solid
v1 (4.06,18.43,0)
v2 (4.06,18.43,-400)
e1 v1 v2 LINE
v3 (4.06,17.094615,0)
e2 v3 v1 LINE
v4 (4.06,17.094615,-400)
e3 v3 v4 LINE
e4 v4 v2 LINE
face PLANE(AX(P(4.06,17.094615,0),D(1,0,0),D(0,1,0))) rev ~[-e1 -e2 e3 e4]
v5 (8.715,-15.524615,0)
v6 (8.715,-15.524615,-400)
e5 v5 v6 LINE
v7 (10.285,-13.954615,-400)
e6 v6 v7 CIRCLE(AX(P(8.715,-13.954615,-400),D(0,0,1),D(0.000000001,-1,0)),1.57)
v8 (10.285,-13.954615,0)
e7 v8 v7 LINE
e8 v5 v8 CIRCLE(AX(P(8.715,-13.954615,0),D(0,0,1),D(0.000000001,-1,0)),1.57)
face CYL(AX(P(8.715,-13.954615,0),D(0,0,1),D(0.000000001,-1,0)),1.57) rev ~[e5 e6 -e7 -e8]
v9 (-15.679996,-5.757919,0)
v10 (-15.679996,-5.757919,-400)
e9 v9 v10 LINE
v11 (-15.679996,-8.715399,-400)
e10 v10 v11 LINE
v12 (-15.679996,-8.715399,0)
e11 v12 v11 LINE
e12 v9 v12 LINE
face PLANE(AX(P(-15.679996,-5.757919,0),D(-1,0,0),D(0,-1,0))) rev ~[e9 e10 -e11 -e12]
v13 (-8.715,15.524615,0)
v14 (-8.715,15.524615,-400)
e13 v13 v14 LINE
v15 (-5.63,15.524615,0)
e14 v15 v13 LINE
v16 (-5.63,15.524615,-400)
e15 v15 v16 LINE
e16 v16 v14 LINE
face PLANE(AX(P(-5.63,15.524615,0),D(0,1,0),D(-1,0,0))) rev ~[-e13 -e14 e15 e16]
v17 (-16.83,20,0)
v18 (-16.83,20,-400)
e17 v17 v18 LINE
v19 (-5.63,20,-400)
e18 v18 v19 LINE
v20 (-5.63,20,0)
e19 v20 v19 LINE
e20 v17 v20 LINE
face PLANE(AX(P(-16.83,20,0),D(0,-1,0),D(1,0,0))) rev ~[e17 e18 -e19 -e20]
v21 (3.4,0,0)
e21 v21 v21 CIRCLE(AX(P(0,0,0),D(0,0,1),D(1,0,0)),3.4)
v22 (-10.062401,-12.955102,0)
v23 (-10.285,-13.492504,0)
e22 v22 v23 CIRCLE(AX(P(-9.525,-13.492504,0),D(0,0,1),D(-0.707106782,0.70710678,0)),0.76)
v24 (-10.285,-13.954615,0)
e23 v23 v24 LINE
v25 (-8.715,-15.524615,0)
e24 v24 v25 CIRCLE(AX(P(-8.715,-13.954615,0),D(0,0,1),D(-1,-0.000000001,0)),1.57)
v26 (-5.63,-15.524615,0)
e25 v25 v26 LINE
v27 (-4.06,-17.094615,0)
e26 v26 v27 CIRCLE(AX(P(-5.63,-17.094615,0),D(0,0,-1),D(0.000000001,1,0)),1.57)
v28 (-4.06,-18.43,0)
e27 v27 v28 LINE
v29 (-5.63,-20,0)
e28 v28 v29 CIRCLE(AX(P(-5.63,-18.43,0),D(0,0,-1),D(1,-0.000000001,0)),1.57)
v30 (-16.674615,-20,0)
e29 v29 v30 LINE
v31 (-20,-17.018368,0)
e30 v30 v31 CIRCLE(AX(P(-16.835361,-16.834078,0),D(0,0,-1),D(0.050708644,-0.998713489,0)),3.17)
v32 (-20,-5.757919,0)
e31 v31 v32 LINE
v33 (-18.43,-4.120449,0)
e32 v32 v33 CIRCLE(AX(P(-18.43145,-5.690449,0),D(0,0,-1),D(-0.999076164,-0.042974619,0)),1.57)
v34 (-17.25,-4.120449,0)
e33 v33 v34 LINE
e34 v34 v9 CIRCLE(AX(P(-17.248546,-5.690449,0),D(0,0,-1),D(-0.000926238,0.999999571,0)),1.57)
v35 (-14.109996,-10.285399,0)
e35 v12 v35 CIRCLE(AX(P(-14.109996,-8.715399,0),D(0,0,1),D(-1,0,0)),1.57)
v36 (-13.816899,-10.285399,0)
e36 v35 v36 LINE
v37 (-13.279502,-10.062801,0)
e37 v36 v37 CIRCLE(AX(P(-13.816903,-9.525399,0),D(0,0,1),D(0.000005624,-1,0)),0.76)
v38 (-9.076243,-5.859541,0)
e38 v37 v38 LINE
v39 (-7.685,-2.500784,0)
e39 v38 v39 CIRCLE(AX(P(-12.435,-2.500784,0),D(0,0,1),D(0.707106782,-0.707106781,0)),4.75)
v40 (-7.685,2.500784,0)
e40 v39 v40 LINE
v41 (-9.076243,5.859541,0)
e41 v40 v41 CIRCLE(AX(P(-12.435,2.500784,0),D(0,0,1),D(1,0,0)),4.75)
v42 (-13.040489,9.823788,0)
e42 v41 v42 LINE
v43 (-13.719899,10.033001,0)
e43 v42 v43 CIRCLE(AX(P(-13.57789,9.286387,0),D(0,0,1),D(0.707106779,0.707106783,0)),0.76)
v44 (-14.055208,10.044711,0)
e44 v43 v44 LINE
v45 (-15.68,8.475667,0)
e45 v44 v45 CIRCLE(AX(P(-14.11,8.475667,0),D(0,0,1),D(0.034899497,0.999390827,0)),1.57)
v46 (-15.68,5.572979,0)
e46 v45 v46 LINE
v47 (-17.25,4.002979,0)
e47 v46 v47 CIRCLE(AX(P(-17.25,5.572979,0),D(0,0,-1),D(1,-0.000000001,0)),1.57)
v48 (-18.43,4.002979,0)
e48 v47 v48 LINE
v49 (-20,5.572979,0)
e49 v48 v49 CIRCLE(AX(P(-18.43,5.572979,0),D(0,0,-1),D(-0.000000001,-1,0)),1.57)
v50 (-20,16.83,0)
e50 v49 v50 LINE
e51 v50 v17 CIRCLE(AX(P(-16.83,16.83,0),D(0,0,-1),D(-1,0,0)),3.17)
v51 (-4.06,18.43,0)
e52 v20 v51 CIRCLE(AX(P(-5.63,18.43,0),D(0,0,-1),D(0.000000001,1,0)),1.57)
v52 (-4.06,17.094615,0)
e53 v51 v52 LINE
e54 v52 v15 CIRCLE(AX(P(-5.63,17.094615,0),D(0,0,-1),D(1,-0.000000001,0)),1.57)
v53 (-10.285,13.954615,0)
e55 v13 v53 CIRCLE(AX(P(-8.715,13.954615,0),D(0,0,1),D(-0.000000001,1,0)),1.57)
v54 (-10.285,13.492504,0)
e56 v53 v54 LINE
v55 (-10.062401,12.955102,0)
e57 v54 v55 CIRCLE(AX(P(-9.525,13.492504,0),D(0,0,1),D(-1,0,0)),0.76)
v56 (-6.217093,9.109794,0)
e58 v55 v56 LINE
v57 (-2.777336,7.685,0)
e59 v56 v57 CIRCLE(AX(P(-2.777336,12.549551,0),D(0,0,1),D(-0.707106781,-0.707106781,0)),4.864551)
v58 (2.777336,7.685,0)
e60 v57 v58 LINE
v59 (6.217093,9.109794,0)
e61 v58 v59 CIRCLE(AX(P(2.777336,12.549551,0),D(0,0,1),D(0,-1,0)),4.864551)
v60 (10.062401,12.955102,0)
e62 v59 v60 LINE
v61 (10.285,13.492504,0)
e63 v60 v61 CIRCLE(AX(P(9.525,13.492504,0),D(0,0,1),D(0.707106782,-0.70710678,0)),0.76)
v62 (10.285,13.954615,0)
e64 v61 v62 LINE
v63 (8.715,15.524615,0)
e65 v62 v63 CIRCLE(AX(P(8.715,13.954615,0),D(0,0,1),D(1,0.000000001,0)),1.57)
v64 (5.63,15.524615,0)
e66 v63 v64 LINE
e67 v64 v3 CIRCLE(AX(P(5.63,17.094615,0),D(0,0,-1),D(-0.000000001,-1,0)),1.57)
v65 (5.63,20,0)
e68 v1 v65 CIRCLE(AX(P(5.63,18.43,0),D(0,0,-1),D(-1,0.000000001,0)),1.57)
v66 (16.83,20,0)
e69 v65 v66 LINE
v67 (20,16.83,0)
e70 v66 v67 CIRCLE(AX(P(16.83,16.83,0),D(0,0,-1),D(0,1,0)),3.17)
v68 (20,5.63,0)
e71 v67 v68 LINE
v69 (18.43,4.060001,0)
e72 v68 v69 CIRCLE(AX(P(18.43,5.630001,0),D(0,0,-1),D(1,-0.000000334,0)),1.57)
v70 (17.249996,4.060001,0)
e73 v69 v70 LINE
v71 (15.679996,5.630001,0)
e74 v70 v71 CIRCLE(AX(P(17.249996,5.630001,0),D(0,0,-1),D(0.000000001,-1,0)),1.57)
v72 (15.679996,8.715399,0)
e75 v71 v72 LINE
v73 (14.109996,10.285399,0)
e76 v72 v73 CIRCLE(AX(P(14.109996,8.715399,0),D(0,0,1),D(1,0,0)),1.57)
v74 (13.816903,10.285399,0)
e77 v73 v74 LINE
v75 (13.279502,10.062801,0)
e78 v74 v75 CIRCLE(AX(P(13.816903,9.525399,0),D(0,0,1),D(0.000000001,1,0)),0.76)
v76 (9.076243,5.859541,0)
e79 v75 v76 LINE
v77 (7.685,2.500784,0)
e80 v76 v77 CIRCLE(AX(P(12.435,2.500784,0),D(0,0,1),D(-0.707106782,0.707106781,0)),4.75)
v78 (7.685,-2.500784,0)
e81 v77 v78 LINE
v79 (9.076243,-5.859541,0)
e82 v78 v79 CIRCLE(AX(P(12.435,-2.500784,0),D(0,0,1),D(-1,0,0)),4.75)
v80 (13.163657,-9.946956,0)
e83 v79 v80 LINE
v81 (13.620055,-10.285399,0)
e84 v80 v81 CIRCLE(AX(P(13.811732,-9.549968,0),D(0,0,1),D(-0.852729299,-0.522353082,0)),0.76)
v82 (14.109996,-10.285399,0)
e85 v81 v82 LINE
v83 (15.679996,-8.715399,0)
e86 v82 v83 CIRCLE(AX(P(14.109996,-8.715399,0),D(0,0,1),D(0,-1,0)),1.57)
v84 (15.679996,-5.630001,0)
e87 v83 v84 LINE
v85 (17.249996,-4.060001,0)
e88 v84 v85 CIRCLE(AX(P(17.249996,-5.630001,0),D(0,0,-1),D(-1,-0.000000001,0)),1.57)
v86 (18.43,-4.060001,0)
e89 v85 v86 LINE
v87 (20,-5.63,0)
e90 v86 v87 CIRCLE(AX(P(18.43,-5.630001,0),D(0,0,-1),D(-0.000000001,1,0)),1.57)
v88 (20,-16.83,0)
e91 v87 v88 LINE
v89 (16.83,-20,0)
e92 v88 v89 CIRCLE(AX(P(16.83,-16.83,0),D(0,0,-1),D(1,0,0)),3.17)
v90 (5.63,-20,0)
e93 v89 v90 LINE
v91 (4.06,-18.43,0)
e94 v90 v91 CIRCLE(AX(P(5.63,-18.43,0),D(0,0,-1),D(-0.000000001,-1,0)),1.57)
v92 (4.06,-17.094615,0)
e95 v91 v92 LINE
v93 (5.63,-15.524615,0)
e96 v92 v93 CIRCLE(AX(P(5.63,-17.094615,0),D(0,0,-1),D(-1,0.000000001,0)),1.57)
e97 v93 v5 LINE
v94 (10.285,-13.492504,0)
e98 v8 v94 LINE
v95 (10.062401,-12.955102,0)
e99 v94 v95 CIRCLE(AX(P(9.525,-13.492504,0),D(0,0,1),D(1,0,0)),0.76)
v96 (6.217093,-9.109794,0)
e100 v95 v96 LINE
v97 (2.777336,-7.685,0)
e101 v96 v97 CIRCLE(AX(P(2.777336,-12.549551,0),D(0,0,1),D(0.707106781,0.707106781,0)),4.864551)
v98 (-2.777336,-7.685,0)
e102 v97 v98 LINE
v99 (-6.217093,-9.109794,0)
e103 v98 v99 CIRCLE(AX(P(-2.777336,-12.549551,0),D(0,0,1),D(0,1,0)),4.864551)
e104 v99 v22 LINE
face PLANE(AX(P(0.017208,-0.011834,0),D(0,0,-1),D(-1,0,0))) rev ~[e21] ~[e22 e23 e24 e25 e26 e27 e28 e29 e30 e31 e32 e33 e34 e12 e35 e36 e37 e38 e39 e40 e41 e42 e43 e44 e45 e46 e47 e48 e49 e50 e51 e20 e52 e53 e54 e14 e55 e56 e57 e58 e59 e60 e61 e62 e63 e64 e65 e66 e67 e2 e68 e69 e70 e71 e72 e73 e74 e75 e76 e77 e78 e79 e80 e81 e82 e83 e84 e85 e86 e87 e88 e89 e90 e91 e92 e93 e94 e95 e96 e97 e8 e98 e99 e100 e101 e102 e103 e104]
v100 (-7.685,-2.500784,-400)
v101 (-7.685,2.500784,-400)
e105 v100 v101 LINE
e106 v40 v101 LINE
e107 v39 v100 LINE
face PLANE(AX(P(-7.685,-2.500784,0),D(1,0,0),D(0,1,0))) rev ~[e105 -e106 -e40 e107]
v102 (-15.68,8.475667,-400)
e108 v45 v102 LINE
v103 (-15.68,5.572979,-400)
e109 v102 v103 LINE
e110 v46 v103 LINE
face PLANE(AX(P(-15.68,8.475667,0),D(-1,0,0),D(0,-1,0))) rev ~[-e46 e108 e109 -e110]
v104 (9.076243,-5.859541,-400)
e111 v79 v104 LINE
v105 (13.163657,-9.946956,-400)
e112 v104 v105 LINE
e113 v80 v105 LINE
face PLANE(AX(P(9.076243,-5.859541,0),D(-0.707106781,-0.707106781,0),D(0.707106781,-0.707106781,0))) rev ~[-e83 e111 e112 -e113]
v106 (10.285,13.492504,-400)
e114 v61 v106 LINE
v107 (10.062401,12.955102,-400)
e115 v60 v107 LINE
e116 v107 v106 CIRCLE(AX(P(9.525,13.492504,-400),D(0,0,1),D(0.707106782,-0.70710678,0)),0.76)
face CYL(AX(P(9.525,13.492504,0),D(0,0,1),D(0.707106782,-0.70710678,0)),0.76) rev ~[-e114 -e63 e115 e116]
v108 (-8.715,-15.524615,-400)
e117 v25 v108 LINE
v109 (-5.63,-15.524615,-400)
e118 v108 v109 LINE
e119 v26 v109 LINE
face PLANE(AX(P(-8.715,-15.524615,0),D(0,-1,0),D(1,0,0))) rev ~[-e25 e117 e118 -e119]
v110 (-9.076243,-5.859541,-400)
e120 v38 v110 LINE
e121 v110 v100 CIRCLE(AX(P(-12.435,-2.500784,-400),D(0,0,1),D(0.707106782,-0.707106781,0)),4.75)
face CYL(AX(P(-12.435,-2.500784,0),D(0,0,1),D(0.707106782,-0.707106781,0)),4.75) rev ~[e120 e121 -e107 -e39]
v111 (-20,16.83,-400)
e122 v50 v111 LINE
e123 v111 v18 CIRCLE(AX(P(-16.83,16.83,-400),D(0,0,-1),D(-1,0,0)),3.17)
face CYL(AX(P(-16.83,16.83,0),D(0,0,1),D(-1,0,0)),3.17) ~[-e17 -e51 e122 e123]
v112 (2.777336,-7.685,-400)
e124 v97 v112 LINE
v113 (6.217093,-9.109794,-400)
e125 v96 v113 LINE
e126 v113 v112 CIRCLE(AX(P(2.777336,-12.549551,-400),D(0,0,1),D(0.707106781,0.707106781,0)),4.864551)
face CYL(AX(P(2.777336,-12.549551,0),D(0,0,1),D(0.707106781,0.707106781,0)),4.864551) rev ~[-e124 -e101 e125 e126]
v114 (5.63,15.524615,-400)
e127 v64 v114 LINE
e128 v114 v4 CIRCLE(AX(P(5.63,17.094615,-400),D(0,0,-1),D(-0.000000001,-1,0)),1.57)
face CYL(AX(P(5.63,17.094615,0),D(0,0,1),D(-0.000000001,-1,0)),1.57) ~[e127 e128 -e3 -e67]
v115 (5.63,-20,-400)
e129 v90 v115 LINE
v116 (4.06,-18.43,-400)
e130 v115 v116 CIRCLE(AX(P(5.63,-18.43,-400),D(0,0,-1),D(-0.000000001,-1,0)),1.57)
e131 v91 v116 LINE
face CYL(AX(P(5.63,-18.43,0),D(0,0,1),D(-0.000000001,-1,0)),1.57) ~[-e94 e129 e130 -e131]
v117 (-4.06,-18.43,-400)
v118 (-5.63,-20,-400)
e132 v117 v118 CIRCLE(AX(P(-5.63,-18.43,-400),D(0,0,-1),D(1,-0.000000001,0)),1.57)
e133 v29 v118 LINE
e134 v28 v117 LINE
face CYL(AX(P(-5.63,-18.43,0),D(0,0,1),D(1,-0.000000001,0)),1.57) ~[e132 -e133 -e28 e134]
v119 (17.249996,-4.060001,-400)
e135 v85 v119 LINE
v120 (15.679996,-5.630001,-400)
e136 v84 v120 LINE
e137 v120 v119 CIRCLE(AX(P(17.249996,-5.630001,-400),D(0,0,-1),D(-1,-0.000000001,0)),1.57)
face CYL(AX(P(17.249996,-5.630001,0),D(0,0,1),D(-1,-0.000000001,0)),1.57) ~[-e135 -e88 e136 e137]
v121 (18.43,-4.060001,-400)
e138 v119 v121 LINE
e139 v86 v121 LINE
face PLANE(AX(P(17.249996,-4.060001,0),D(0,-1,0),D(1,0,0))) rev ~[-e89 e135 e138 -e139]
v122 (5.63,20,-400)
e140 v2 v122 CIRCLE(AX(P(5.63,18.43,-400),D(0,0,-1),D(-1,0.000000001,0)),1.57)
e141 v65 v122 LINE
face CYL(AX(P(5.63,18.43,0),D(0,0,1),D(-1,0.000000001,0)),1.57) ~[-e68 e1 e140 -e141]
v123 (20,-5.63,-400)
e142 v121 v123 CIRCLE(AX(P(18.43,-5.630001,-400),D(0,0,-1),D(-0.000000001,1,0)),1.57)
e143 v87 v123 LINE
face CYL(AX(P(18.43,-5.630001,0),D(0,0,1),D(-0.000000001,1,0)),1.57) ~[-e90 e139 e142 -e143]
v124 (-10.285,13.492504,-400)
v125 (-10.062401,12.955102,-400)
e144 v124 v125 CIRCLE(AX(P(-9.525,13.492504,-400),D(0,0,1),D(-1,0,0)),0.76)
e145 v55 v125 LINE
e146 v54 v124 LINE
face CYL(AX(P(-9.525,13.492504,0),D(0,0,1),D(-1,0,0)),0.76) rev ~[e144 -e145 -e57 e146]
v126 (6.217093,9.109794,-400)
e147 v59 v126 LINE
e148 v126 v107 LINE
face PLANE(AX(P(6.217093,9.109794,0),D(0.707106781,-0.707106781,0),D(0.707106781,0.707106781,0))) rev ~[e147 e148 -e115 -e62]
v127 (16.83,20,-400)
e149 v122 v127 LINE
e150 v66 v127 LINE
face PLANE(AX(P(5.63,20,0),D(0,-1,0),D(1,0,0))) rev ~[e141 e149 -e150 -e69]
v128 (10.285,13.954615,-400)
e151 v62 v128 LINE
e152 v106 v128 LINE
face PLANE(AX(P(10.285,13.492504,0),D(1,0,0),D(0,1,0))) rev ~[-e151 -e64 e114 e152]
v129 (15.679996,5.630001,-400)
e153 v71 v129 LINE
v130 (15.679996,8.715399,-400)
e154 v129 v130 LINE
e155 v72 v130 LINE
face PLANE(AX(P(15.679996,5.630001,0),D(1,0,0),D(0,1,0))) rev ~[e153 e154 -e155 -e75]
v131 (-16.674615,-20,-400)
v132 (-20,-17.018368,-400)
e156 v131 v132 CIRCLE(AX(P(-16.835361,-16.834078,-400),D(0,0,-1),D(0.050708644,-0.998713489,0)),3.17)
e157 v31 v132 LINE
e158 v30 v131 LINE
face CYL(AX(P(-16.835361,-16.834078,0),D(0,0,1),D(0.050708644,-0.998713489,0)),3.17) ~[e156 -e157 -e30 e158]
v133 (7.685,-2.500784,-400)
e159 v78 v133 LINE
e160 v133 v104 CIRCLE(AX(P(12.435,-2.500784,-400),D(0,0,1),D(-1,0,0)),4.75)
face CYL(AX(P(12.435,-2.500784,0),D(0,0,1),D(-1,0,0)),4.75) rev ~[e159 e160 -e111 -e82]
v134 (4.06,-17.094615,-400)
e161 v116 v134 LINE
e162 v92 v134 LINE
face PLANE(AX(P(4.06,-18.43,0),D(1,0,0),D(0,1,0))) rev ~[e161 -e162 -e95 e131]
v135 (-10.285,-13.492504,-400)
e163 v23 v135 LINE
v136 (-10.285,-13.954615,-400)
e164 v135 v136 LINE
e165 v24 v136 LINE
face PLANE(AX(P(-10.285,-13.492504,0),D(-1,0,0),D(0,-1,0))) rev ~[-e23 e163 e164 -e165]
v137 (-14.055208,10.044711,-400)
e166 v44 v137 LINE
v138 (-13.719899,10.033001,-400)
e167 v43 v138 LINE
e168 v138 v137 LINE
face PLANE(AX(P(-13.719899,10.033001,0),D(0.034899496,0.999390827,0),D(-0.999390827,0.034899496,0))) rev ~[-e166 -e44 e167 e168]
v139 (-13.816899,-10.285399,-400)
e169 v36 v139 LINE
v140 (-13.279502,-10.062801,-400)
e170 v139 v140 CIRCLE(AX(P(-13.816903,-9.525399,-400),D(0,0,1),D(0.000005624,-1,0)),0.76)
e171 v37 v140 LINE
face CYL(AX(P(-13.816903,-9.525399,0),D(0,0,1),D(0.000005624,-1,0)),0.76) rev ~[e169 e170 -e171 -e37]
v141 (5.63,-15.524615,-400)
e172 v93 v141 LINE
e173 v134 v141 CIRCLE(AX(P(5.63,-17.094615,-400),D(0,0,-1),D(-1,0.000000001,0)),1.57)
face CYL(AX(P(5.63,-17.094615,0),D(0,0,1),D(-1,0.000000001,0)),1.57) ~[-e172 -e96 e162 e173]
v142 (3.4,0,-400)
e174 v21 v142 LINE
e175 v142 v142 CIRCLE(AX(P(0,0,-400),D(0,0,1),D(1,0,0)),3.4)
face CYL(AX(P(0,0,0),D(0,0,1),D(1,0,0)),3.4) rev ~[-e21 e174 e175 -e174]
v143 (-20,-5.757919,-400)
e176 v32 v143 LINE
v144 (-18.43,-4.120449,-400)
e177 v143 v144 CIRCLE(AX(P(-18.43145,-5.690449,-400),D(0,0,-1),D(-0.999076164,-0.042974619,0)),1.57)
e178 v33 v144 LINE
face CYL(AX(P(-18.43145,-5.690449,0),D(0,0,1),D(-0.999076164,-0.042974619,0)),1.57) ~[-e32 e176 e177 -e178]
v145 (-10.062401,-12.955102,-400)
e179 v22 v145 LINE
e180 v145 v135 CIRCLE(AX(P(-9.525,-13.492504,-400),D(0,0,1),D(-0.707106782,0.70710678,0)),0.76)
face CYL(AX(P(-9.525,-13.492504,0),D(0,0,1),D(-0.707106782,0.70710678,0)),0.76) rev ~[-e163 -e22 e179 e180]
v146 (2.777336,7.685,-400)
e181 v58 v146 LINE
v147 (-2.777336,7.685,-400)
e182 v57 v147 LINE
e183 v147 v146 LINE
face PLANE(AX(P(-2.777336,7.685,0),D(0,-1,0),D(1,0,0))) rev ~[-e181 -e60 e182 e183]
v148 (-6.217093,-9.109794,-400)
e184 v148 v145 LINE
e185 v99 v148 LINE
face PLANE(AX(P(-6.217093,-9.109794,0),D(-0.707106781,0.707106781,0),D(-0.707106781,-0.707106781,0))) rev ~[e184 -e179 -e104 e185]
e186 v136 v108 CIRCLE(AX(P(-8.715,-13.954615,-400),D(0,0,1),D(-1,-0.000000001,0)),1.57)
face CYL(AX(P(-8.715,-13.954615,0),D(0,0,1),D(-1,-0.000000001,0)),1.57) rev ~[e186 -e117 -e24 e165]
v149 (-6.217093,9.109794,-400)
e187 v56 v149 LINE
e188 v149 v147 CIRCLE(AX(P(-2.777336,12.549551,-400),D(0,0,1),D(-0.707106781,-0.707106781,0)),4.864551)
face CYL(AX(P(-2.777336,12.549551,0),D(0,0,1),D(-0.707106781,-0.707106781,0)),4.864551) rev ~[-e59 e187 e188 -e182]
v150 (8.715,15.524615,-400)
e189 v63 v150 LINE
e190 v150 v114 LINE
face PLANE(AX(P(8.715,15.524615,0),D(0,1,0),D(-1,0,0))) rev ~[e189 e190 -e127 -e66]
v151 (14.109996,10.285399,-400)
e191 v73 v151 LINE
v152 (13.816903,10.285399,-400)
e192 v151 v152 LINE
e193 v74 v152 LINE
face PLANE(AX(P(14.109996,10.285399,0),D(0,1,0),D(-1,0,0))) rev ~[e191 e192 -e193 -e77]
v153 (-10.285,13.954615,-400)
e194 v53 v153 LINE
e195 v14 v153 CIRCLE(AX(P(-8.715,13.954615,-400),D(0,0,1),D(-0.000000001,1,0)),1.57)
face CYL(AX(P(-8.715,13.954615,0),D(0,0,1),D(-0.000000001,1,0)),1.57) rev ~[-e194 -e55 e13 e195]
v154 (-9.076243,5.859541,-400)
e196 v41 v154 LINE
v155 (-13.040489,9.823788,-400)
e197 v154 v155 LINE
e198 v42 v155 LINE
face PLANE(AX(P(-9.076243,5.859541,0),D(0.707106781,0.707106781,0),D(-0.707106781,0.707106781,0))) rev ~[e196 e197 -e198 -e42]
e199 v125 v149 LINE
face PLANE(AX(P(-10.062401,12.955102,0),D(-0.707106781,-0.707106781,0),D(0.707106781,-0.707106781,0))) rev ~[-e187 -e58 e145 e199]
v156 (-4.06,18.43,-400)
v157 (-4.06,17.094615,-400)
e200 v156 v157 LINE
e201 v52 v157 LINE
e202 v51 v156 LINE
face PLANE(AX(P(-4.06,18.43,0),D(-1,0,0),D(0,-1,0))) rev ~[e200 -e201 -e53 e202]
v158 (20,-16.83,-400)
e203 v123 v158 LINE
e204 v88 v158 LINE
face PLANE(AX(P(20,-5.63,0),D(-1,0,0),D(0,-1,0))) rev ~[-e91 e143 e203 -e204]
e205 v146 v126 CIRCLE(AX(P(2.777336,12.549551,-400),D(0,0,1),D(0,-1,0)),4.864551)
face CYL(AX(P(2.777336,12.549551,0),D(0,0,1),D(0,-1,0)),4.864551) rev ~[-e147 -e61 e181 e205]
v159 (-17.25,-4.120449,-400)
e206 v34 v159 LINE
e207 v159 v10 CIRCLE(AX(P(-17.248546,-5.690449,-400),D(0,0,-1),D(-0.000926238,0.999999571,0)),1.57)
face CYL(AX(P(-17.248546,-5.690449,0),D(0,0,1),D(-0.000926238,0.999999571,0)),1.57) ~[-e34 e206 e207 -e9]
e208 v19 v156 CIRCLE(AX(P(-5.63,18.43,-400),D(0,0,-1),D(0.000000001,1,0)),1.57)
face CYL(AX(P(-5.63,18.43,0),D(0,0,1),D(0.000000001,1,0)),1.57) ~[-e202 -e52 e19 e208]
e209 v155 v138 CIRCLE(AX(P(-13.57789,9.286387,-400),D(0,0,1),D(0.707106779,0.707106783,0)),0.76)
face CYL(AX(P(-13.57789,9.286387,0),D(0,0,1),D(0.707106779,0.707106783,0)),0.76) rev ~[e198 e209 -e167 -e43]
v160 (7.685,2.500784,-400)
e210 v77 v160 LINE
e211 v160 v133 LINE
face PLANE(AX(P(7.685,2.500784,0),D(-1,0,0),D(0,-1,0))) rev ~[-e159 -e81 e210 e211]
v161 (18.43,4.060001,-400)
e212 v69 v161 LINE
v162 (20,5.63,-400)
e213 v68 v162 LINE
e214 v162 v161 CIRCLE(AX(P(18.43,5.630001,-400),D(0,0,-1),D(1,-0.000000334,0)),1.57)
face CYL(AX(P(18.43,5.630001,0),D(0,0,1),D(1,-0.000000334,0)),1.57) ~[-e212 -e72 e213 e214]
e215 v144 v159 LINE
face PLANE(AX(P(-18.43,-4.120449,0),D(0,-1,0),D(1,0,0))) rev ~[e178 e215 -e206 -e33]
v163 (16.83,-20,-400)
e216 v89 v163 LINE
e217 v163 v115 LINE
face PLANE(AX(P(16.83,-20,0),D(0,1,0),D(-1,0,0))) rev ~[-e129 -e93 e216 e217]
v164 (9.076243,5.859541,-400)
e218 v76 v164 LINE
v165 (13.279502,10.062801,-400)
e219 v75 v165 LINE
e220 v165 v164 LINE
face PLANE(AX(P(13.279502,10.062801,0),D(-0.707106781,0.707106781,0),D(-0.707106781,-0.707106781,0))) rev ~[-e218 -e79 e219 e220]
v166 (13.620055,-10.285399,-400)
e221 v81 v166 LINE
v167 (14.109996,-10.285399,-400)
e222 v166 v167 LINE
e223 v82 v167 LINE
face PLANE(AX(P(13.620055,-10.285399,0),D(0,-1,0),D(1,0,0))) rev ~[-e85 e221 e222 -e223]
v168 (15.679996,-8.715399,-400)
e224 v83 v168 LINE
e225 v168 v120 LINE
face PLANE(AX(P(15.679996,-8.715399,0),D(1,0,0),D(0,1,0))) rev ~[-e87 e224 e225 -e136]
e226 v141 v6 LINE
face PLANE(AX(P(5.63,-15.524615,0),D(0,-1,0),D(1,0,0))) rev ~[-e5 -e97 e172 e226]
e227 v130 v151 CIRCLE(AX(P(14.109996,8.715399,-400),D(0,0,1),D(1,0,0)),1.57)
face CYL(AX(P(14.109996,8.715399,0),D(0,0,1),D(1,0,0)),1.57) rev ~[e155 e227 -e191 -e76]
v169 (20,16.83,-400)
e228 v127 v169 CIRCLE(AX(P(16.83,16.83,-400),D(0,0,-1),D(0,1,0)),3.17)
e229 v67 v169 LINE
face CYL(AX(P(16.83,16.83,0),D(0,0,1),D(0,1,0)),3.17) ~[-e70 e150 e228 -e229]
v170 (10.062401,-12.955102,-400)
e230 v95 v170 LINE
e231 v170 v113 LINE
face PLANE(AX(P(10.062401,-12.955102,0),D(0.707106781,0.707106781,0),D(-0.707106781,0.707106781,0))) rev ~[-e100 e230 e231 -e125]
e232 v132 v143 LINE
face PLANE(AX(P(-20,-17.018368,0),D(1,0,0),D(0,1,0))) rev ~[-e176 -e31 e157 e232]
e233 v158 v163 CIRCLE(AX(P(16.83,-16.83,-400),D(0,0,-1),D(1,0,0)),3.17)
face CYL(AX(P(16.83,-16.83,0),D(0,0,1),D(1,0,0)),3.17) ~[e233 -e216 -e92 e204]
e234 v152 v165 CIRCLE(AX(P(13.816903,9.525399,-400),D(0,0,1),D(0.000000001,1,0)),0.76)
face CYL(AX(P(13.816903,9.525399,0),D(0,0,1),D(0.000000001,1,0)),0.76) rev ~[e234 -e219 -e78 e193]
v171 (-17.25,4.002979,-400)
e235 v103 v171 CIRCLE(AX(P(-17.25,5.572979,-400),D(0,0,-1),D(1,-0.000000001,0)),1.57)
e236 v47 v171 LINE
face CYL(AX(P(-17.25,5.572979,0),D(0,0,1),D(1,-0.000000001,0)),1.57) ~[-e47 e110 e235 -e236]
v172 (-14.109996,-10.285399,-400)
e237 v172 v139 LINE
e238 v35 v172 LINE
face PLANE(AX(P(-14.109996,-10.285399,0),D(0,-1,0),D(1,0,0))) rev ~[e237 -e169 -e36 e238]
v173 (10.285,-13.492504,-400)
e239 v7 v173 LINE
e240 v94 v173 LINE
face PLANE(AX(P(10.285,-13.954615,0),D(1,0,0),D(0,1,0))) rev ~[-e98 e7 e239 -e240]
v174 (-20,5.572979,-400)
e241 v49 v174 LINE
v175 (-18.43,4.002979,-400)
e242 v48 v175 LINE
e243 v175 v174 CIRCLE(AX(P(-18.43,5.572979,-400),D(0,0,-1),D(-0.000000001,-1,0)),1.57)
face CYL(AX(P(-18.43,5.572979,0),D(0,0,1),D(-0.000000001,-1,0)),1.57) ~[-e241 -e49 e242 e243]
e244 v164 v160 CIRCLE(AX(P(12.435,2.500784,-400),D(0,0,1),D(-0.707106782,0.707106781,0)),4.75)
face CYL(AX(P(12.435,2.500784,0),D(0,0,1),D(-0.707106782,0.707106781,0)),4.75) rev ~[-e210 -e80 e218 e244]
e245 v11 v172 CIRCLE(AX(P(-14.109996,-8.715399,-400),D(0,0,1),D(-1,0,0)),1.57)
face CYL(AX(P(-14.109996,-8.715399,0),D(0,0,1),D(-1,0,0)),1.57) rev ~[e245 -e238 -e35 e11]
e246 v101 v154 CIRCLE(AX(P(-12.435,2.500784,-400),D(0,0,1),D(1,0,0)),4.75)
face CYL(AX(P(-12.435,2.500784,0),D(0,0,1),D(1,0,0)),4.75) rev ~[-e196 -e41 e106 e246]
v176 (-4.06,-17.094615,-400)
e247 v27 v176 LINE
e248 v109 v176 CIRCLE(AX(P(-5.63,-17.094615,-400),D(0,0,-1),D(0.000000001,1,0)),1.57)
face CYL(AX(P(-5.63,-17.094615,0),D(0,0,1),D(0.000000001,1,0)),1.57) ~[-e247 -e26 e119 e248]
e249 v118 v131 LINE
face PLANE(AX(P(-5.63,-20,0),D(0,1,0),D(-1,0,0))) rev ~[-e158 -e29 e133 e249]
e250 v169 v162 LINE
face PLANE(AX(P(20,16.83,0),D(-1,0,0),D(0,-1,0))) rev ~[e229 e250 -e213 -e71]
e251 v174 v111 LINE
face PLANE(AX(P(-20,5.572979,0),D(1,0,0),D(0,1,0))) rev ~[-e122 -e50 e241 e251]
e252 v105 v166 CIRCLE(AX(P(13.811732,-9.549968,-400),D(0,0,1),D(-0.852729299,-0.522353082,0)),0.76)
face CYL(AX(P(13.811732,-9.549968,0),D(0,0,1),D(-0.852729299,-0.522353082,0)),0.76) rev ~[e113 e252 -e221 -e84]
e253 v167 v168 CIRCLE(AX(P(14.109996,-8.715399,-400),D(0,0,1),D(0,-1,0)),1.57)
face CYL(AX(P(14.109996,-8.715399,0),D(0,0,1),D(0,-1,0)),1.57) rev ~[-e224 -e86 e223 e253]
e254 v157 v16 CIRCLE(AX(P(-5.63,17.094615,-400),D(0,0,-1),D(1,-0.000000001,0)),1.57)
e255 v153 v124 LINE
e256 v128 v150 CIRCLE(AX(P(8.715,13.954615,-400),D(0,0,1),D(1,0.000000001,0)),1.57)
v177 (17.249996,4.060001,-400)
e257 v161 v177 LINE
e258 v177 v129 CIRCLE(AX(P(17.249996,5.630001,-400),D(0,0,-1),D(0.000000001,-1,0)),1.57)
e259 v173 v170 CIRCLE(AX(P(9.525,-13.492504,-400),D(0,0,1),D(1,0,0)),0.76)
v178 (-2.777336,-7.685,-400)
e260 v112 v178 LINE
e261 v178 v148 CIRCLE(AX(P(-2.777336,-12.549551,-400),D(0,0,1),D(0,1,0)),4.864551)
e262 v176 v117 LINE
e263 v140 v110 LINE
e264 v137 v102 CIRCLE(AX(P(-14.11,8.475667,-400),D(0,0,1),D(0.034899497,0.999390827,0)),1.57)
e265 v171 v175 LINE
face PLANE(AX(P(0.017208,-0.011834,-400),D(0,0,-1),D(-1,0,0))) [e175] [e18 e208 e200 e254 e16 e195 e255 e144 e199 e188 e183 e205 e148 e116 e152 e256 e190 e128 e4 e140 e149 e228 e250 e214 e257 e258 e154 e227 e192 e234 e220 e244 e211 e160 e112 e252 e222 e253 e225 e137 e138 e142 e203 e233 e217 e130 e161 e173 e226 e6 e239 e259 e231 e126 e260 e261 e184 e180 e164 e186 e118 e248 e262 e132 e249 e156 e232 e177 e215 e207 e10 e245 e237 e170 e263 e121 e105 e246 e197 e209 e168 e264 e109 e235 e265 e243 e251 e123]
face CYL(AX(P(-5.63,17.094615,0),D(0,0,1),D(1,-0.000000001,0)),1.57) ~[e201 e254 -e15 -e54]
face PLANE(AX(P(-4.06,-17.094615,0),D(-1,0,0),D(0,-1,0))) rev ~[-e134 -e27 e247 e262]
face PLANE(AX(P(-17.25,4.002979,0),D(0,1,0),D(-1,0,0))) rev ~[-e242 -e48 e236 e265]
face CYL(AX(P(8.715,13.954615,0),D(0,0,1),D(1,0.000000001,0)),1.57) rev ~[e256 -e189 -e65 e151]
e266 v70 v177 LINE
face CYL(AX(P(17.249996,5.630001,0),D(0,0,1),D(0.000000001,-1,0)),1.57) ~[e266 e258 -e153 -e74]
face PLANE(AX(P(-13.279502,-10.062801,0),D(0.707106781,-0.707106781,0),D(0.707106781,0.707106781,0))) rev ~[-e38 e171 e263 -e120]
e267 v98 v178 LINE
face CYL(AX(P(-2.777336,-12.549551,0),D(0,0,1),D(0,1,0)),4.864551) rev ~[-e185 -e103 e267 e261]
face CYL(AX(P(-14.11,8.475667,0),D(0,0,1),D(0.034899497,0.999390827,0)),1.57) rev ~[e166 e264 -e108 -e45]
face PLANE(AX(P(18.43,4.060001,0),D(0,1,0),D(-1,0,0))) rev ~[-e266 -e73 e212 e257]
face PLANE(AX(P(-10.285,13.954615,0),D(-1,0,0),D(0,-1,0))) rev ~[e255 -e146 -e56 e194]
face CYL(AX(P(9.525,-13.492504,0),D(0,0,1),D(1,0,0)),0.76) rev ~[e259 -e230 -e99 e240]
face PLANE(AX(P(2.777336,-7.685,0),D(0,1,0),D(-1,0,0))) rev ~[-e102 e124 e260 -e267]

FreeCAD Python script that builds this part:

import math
import FreeCAD as App
import Part
import Sketcher
from FreeCAD import Vector
Q = App.Units.Quantity

doc = App.newDocument("Part")
params = doc.addObject("Spreadsheet::Sheet", "Params")
for row, (alias, value) in enumerate([
    ("sketch1_diameter", "6.8 mm"),
    ("sketch1_radius", "1.57 mm"),
    ("sketch1_radius2", "0.76 mm"),
    ("sketch1_radius3", "3.17 mm"),
    ("sketch1_radius4", "4.75 mm"),
    ("pad1_length", "400 mm"),
], start=1):
    params.set(f"A{row}", alias)
    params.set(f"B{row}", "=" + value)
    params.setAlias(f"B{row}", alias)

body = doc.addObject("PartDesign::Body", "Body")

sketch1 = body.newObject("Sketcher::SketchObject", "Sketch")
sketch1.AttachmentSupport = (doc.getObject("XY_Plane"), [""])
sketch1.MapMode = "FlatFace"
sketch1.addGeometry([
    Part.LineSegment(Vector(-5.63, -15.52, 0), Vector(-8.71, -15.52, 0)),
    Part.ArcOfCircle(Part.Circle(Vector(-8.71, -13.95, 0), Vector(0, 0, 1), 1.57), math.radians(-180), math.radians(-90)),
    Part.LineSegment(Vector(-10.29, -13.95, 0), Vector(-10.29, -13.49, 0)),
    Part.ArcOfCircle(Part.Circle(Vector(-9.52, -13.49, 0), Vector(0, 0, 1), 0.76), math.radians(135), math.radians(180)),
    Part.LineSegment(Vector(-10.06, -12.96, 0), Vector(-6.22, -9.11, 0)),
    Part.ArcOfCircle(Part.Circle(Vector(-2.78, -12.55, 0), Vector(0, 0, 1), 4.86), math.radians(90), math.radians(135)),
    Part.LineSegment(Vector(-2.78, -7.68, 0), Vector(2.78, -7.68, 0)),
    Part.ArcOfCircle(Part.Circle(Vector(2.78, -12.55, 0), Vector(0, 0, 1), 4.86), math.radians(45), math.radians(90)),
    Part.LineSegment(Vector(6.22, -9.11, 0), Vector(10.06, -12.96, 0)),
    Part.ArcOfCircle(Part.Circle(Vector(9.52, -13.49, 0), Vector(0, 0, 1), 0.76), math.radians(0), math.radians(45)),
    Part.LineSegment(Vector(10.29, -13.49, 0), Vector(10.29, -13.95, 0)),
    Part.ArcOfCircle(Part.Circle(Vector(8.71, -13.95, 0), Vector(0, 0, 1), 1.57), math.radians(-90), math.radians(0)),
    Part.LineSegment(Vector(8.71, -15.52, 0), Vector(5.63, -15.52, 0)),
    Part.ArcOfCircle(Part.Circle(Vector(5.63, -17.09, 0), Vector(0, 0, 1), 1.57), math.radians(90), math.radians(180)),
    Part.LineSegment(Vector(4.06, -17.09, 0), Vector(4.06, -18.43, 0)),
    Part.ArcOfCircle(Part.Circle(Vector(5.63, -18.43, 0), Vector(0, 0, 1), 1.57), math.radians(-180), math.radians(-90)),
    Part.LineSegment(Vector(5.63, -20, 0), Vector(16.83, -20, 0)),
    Part.ArcOfCircle(Part.Circle(Vector(16.83, -16.83, 0), Vector(0, 0, 1), 3.17), math.radians(-90), math.radians(0)),
    Part.LineSegment(Vector(20, -16.83, 0), Vector(20, -5.63, 0)),
    Part.ArcOfCircle(Part.Circle(Vector(18.43, -5.63, 0), Vector(0, 0, 1), 1.57), math.radians(0), math.radians(90)),
    Part.LineSegment(Vector(18.43, -4.06, 0), Vector(17.25, -4.06, 0)),
    Part.ArcOfCircle(Part.Circle(Vector(17.25, -5.63, 0), Vector(0, 0, 1), 1.57), math.radians(90), math.radians(180)),
    Part.LineSegment(Vector(15.68, -5.63, 0), Vector(15.68, -8.72, 0)),
    Part.ArcOfCircle(Part.Circle(Vector(14.11, -8.72, 0), Vector(0, 0, 1), 1.57), math.radians(-90), math.radians(0)),
    Part.LineSegment(Vector(14.11, -10.29, 0), Vector(13.62, -10.29, 0)),
    Part.ArcOfCircle(Part.Circle(Vector(13.81, -9.55, 0), Vector(0, 0, 1), 0.76), math.radians(-149), math.radians(-105)),
    Part.LineSegment(Vector(13.16, -9.95, 0), Vector(9.08, -5.86, 0)),
    Part.ArcOfCircle(Part.Circle(Vector(12.44, -2.5, 0), Vector(0, 0, 1), 4.75), math.radians(-180), math.radians(-135)),
    Part.LineSegment(Vector(7.68, -2.5, 0), Vector(7.68, 2.5, 0)),
    Part.ArcOfCircle(Part.Circle(Vector(12.44, 2.5, 0), Vector(0, 0, 1), 4.75), math.radians(135), math.radians(180)),
    Part.LineSegment(Vector(9.08, 5.86, 0), Vector(13.28, 10.06, 0)),
    Part.ArcOfCircle(Part.Circle(Vector(13.82, 9.53, 0), Vector(0, 0, 1), 0.76), math.radians(90), math.radians(135)),
    Part.LineSegment(Vector(13.82, 10.29, 0), Vector(14.11, 10.29, 0)),
    Part.ArcOfCircle(Part.Circle(Vector(14.11, 8.72, 0), Vector(0, 0, 1), 1.57), math.radians(0), math.radians(90)),
    Part.LineSegment(Vector(15.68, 8.72, 0), Vector(15.68, 5.63, 0)),
    Part.ArcOfCircle(Part.Circle(Vector(17.25, 5.63, 0), Vector(0, 0, 1), 1.57), math.radians(180), math.radians(270)),
    Part.LineSegment(Vector(17.25, 4.06, 0), Vector(18.43, 4.06, 0)),
    Part.ArcOfCircle(Part.Circle(Vector(18.43, 5.63, 0), Vector(0, 0, 1), 1.57), math.radians(-90), math.radians(0)),
    Part.LineSegment(Vector(20, 5.63, 0), Vector(20, 16.83, 0)),
    Part.ArcOfCircle(Part.Circle(Vector(16.83, 16.83, 0), Vector(0, 0, 1), 3.17), math.radians(0), math.radians(90)),
    Part.LineSegment(Vector(16.83, 20, 0), Vector(5.63, 20, 0)),
    Part.ArcOfCircle(Part.Circle(Vector(5.63, 18.43, 0), Vector(0, 0, 1), 1.57), math.radians(90), math.radians(180)),
    Part.LineSegment(Vector(4.06, 18.43, 0), Vector(4.06, 17.09, 0)),
    Part.ArcOfCircle(Part.Circle(Vector(5.63, 17.09, 0), Vector(0, 0, 1), 1.57), math.radians(-180), math.radians(-90)),
    Part.LineSegment(Vector(5.63, 15.52, 0), Vector(8.71, 15.52, 0)),
    Part.ArcOfCircle(Part.Circle(Vector(8.71, 13.95, 0), Vector(0, 0, 1), 1.57), math.radians(0), math.radians(90)),
    Part.LineSegment(Vector(10.29, 13.95, 0), Vector(10.29, 13.49, 0)),
    Part.ArcOfCircle(Part.Circle(Vector(9.52, 13.49, 0), Vector(0, 0, 1), 0.76), math.radians(-45), math.radians(0)),
    Part.LineSegment(Vector(10.06, 12.96, 0), Vector(6.22, 9.11, 0)),
    Part.ArcOfCircle(Part.Circle(Vector(2.78, 12.55, 0), Vector(0, 0, 1), 4.86), math.radians(-90), math.radians(-45)),
    Part.LineSegment(Vector(2.78, 7.68, 0), Vector(-2.78, 7.68, 0)),
    Part.ArcOfCircle(Part.Circle(Vector(-2.78, 12.55, 0), Vector(0, 0, 1), 4.86), math.radians(-135), math.radians(-90)),
    Part.LineSegment(Vector(-6.22, 9.11, 0), Vector(-10.06, 12.96, 0)),
    Part.ArcOfCircle(Part.Circle(Vector(-9.52, 13.49, 0), Vector(0, 0, 1), 0.76), math.radians(180), math.radians(225)),
    Part.LineSegment(Vector(-10.29, 13.49, 0), Vector(-10.29, 13.95, 0)),
    Part.ArcOfCircle(Part.Circle(Vector(-8.71, 13.95, 0), Vector(0, 0, 1), 1.57), math.radians(90), math.radians(180)),
    Part.LineSegment(Vector(-8.71, 15.52, 0), Vector(-5.63, 15.52, 0)),
    Part.ArcOfCircle(Part.Circle(Vector(-5.63, 17.09, 0), Vector(0, 0, 1), 1.57), math.radians(-90), math.radians(0)),
    Part.LineSegment(Vector(-4.06, 17.09, 0), Vector(-4.06, 18.43, 0)),
    Part.ArcOfCircle(Part.Circle(Vector(-5.63, 18.43, 0), Vector(0, 0, 1), 1.57), math.radians(0), math.radians(90)),
    Part.LineSegment(Vector(-5.63, 20, 0), Vector(-16.83, 20, 0)),
    Part.ArcOfCircle(Part.Circle(Vector(-16.83, 16.83, 0), Vector(0, 0, 1), 3.17), math.radians(90), math.radians(180)),
    Part.LineSegment(Vector(-20, 16.83, 0), Vector(-20, 5.57, 0)),
    Part.ArcOfCircle(Part.Circle(Vector(-18.43, 5.57, 0), Vector(0, 0, 1), 1.57), math.radians(-180), math.radians(-90)),
    Part.LineSegment(Vector(-18.43, 4, 0), Vector(-17.25, 4, 0)),
    Part.ArcOfCircle(Part.Circle(Vector(-17.25, 5.57, 0), Vector(0, 0, 1), 1.57), math.radians(-90), math.radians(0)),
    Part.LineSegment(Vector(-15.68, 5.57, 0), Vector(-15.68, 8.48, 0)),
    Part.ArcOfCircle(Part.Circle(Vector(-14.11, 8.48, 0), Vector(0, 0, 1), 1.57), math.radians(88), math.radians(180)),
    Part.LineSegment(Vector(-14.06, 10.04, 0), Vector(-13.72, 10.03, 0)),
    Part.ArcOfCircle(Part.Circle(Vector(-13.58, 9.29, 0), Vector(0, 0, 1), 0.76), math.radians(45), math.radians(101)),
    Part.LineSegment(Vector(-13.04, 9.82, 0), Vector(-9.08, 5.86, 0)),
    Part.ArcOfCircle(Part.Circle(Vector(-12.44, 2.5, 0), Vector(0, 0, 1), 4.75), math.radians(0), math.radians(45)),
    Part.LineSegment(Vector(-7.68, 2.5, 0), Vector(-7.68, -2.5, 0)),
    Part.ArcOfCircle(Part.Circle(Vector(-12.44, -2.5, 0), Vector(0, 0, 1), 4.75), math.radians(-45), math.radians(0)),
    Part.LineSegment(Vector(-9.08, -5.86, 0), Vector(-13.28, -10.06, 0)),
    Part.ArcOfCircle(Part.Circle(Vector(-13.82, -9.53, 0), Vector(0, 0, 1), 0.76), math.radians(-90), math.radians(-45)),
    Part.LineSegment(Vector(-13.82, -10.29, 0), Vector(-14.11, -10.29, 0)),
    Part.ArcOfCircle(Part.Circle(Vector(-14.11, -8.72, 0), Vector(0, 0, 1), 1.57), math.radians(180), math.radians(270)),
    Part.LineSegment(Vector(-15.68, -8.72, 0), Vector(-15.68, -5.76, 0)),
    Part.ArcOfCircle(Part.Circle(Vector(-17.25, -5.69, 0), Vector(0, 0, 1), 1.57), math.radians(-2), math.radians(90)),
    Part.LineSegment(Vector(-17.25, -4.12, 0), Vector(-18.43, -4.12, 0)),
    Part.ArcOfCircle(Part.Circle(Vector(-18.43, -5.69, 0), Vector(0, 0, 1), 1.57), math.radians(90), math.radians(182)),
    Part.LineSegment(Vector(-20, -5.76, 0), Vector(-20, -17.02, 0)),
    Part.ArcOfCircle(Part.Circle(Vector(-16.84, -16.83, 0), Vector(0, 0, 1), 3.17), math.radians(-177), math.radians(-87)),
    Part.LineSegment(Vector(-16.67, -20, 0), Vector(-5.63, -20, 0)),
    Part.ArcOfCircle(Part.Circle(Vector(-5.63, -18.43, 0), Vector(0, 0, 1), 1.57), math.radians(-90), math.radians(0)),
    Part.LineSegment(Vector(-4.06, -18.43, 0), Vector(-4.06, -17.09, 0)),
    Part.ArcOfCircle(Part.Circle(Vector(-5.63, -17.09, 0), Vector(0, 0, 1), 1.57), math.radians(0), math.radians(90)),
    Part.Circle(Vector(0, 0, 0), Vector(0, 0, 1), 3.4),
], False)
sketch1.addConstraint([
    Sketcher.Constraint("Tangent", 0, 2, 1, 2),
    Sketcher.Constraint("Tangent", 1, 1, 2, 1),
    Sketcher.Constraint("Tangent", 2, 2, 3, 2),
    Sketcher.Constraint("Tangent", 3, 1, 4, 1),
    Sketcher.Constraint("Tangent", 4, 2, 5, 2),
    Sketcher.Constraint("Tangent", 5, 1, 6, 1),
    Sketcher.Constraint("Tangent", 6, 2, 7, 2),
    Sketcher.Constraint("Tangent", 7, 1, 8, 1),
    Sketcher.Constraint("Tangent", 8, 2, 9, 2),
    Sketcher.Constraint("Tangent", 9, 1, 10, 1),
    Sketcher.Constraint("Tangent", 10, 2, 11, 2),
    Sketcher.Constraint("Tangent", 11, 1, 12, 1),
    Sketcher.Constraint("Tangent", 12, 2, 13, 1),
    Sketcher.Constraint("Tangent", 13, 2, 14, 1),
    Sketcher.Constraint("Tangent", 14, 2, 15, 1),
    Sketcher.Constraint("Tangent", 15, 2, 16, 1),
    Sketcher.Constraint("Tangent", 16, 2, 17, 1),
    Sketcher.Constraint("Tangent", 17, 2, 18, 1),
    Sketcher.Constraint("Tangent", 18, 2, 19, 1),
    Sketcher.Constraint("Tangent", 19, 2, 20, 1),
    Sketcher.Constraint("Tangent", 20, 2, 21, 1),
    Sketcher.Constraint("Tangent", 21, 2, 22, 1),
    Sketcher.Constraint("Tangent", 22, 2, 23, 2),
    Sketcher.Constraint("Tangent", 23, 1, 24, 1),
    Sketcher.Constraint("Coincident", 24, 2, 25, 2),
    Sketcher.Constraint("Coincident", 25, 1, 26, 1),
    Sketcher.Constraint("Tangent", 26, 2, 27, 2),
    Sketcher.Constraint("Tangent", 27, 1, 28, 1),
    Sketcher.Constraint("Tangent", 28, 2, 29, 2),
    Sketcher.Constraint("Tangent", 29, 1, 30, 1),
    Sketcher.Constraint("Tangent", 30, 2, 31, 2),
    Sketcher.Constraint("Tangent", 31, 1, 32, 1),
    Sketcher.Constraint("Tangent", 32, 2, 33, 2),
    Sketcher.Constraint("Tangent", 33, 1, 34, 1),
    Sketcher.Constraint("Tangent", 34, 2, 35, 1),
    Sketcher.Constraint("Tangent", 35, 2, 36, 1),
    Sketcher.Constraint("Tangent", 36, 2, 37, 1),
    Sketcher.Constraint("Tangent", 37, 2, 38, 1),
    Sketcher.Constraint("Tangent", 38, 2, 39, 1),
    Sketcher.Constraint("Tangent", 39, 2, 40, 1),
    Sketcher.Constraint("Tangent", 40, 2, 41, 1),
    Sketcher.Constraint("Tangent", 41, 2, 42, 1),
    Sketcher.Constraint("Tangent", 42, 2, 43, 1),
    Sketcher.Constraint("Tangent", 43, 2, 44, 1),
    Sketcher.Constraint("Tangent", 44, 2, 45, 2),
    Sketcher.Constraint("Tangent", 45, 1, 46, 1),
    Sketcher.Constraint("Tangent", 46, 2, 47, 2),
    Sketcher.Constraint("Tangent", 47, 1, 48, 1),
    Sketcher.Constraint("Tangent", 48, 2, 49, 2),
    Sketcher.Constraint("Tangent", 49, 1, 50, 1),
    Sketcher.Constraint("Tangent", 50, 2, 51, 2),
    Sketcher.Constraint("Tangent", 51, 1, 52, 1),
    Sketcher.Constraint("Tangent", 52, 2, 53, 2),
    Sketcher.Constraint("Tangent", 53, 1, 54, 1),
    Sketcher.Constraint("Tangent", 54, 2, 55, 2),
    Sketcher.Constraint("Tangent", 55, 1, 56, 1),
    Sketcher.Constraint("Tangent", 56, 2, 57, 1),
    Sketcher.Constraint("Tangent", 57, 2, 58, 1),
    Sketcher.Constraint("Tangent", 58, 2, 59, 1),
    Sketcher.Constraint("Tangent", 59, 2, 60, 1),
    Sketcher.Constraint("Tangent", 60, 2, 61, 1),
    Sketcher.Constraint("Tangent", 61, 2, 62, 1),
    Sketcher.Constraint("Tangent", 62, 2, 63, 1),
    Sketcher.Constraint("Tangent", 63, 2, 64, 1),
    Sketcher.Constraint("Tangent", 64, 2, 65, 1),
    Sketcher.Constraint("Tangent", 65, 2, 66, 1),
    Sketcher.Constraint("Tangent", 66, 2, 67, 2),
    Sketcher.Constraint("Tangent", 67, 1, 68, 1),
    Sketcher.Constraint("Coincident", 68, 2, 69, 2),
    Sketcher.Constraint("Tangent", 69, 1, 70, 1),
    Sketcher.Constraint("Tangent", 70, 2, 71, 2),
    Sketcher.Constraint("Tangent", 71, 1, 72, 1),
    Sketcher.Constraint("Tangent", 72, 2, 73, 2),
    Sketcher.Constraint("Tangent", 73, 1, 74, 1),
    Sketcher.Constraint("Tangent", 74, 2, 75, 2),
    Sketcher.Constraint("Coincident", 75, 1, 76, 1),
    Sketcher.Constraint("Tangent", 76, 2, 77, 2),
    Sketcher.Constraint("Tangent", 77, 1, 78, 1),
    Sketcher.Constraint("Coincident", 78, 2, 79, 1),
    Sketcher.Constraint("Coincident", 79, 2, 80, 1),
    Sketcher.Constraint("Coincident", 80, 2, 81, 1),
    Sketcher.Constraint("Coincident", 81, 2, 82, 1),
    Sketcher.Constraint("Coincident", 82, 2, 83, 1),
    Sketcher.Constraint("Coincident", 83, 2, 84, 1),
    Sketcher.Constraint("Tangent", 84, 2, 85, 1),
    Sketcher.Constraint("Tangent", 85, 2, 86, 1),
    Sketcher.Constraint("Tangent", 86, 2, 87, 1),
    Sketcher.Constraint("Tangent", 87, 2, 0, 1),
    Sketcher.Constraint("Horizontal", 0),
    Sketcher.Constraint("Vertical", 2),
    Sketcher.Constraint("Horizontal", 6),
    Sketcher.Constraint("Vertical", 10),
    Sketcher.Constraint("Horizontal", 12),
    Sketcher.Constraint("Vertical", 14),
    Sketcher.Constraint("Horizontal", 16),
    Sketcher.Constraint("Vertical", 18),
    Sketcher.Constraint("Horizontal", 20),
    Sketcher.Constraint("Vertical", 22),
    Sketcher.Constraint("Horizontal", 24),
    Sketcher.Constraint("Vertical", 28),
    Sketcher.Constraint("Horizontal", 32),
    Sketcher.Constraint("Vertical", 34),
    Sketcher.Constraint("Horizontal", 36),
    Sketcher.Constraint("Vertical", 38),
    Sketcher.Constraint("Horizontal", 40),
    Sketcher.Constraint("Vertical", 42),
    Sketcher.Constraint("Horizontal", 44),
    Sketcher.Constraint("Vertical", 46),
    Sketcher.Constraint("Horizontal", 50),
    Sketcher.Constraint("Vertical", 54),
    Sketcher.Constraint("Horizontal", 56),
    Sketcher.Constraint("Vertical", 58),
    Sketcher.Constraint("Horizontal", 60),
    Sketcher.Constraint("Vertical", 62),
    Sketcher.Constraint("Horizontal", 64),
    Sketcher.Constraint("Vertical", 66),
    Sketcher.Constraint("Vertical", 72),
    Sketcher.Constraint("Horizontal", 76),
    Sketcher.Constraint("Vertical", 78),
    Sketcher.Constraint("Horizontal", 80),
    Sketcher.Constraint("Vertical", 82),
    Sketcher.Constraint("Horizontal", 84),
    Sketcher.Constraint("Vertical", 86),
    Sketcher.Constraint("Coincident", 88, 3, -1, 1),
    Sketcher.Constraint("Equal", 5, 7),
    Sketcher.Constraint("Equal", 3, 9),
    Sketcher.Constraint("Equal", 1, 11),
    Sketcher.Constraint("Equal", 11, 13),
    Sketcher.Constraint("Equal", 13, 15),
    Sketcher.Constraint("Equal", 15, 19),
    Sketcher.Constraint("Equal", 19, 21),
    Sketcher.Constraint("Equal", 21, 23),
    Sketcher.Constraint("Equal", 9, 25),
    Sketcher.Constraint("Equal", 27, 29),
    Sketcher.Constraint("Equal", 25, 31),
    Sketcher.Constraint("Equal", 23, 33),
    Sketcher.Constraint("Equal", 33, 35),
    Sketcher.Constraint("Equal", 35, 37),
    Sketcher.Constraint("Equal", 17, 39),
    Sketcher.Constraint("Equal", 37, 41),
    Sketcher.Constraint("Equal", 41, 43),
    Sketcher.Constraint("Equal", 43, 45),
    Sketcher.Constraint("Equal", 31, 47),
    Sketcher.Constraint("Equal", 7, 49),
    Sketcher.Constraint("Equal", 49, 51),
    Sketcher.Constraint("Equal", 47, 53),
    Sketcher.Constraint("Equal", 45, 55),
    Sketcher.Constraint("Equal", 55, 57),
    Sketcher.Constraint("Equal", 57, 59),
    Sketcher.Constraint("Equal", 39, 61),
    Sketcher.Constraint("Equal", 59, 63),
    Sketcher.Constraint("Equal", 63, 65),
    Sketcher.Constraint("Equal", 65, 67),
    Sketcher.Constraint("Equal", 53, 69),
    Sketcher.Constraint("Equal", 29, 71),
    Sketcher.Constraint("Equal", 71, 73),
    Sketcher.Constraint("Equal", 69, 75),
    Sketcher.Constraint("Equal", 67, 77),
    Sketcher.Constraint("Equal", 77, 79),
    Sketcher.Constraint("Equal", 79, 81),
    Sketcher.Constraint("Equal", 61, 83),
    Sketcher.Constraint("Equal", 81, 85),
    Sketcher.Constraint("Equal", 85, 87),
    Sketcher.Constraint("Symmetric", 1, 3, 45, 3, -1, 1),
    Sketcher.Constraint("Symmetric", 5, 3, 49, 3, -1, 1),
    Sketcher.Constraint("Symmetric", 9, 3, 53, 3, -1, 1),
    Sketcher.Constraint("Symmetric", 13, 3, 57, 3, -1, 1),
    Sketcher.Constraint("Symmetric", 17, 3, 61, 3, -1, 1),
    Sketcher.Constraint("Symmetric", 27, 3, 71, 3, -1, 1),
    Sketcher.Constraint("Symmetric", 31, 3, 75, 3, -1, 1),
    Sketcher.Constraint("Symmetric", 41, 3, 85, 3, -1, 1),
    Sketcher.Constraint("Symmetric", 3, 3, 9, 3, -2),
    Sketcher.Constraint("Symmetric", 43, 3, 57, 3, -2),
    Sketcher.Constraint("Symmetric", 39, 3, 61, 3, -2),
    Sketcher.Constraint("Symmetric", 23, 3, 77, 3, -2),
    Sketcher.Constraint("Symmetric", 48, 2, 51, 1, -2),
    Sketcher.Constraint("Symmetric", 29, 1, 70, 2, -2),
    Sketcher.Constraint("Symmetric", 26, 2, 73, 1, -2),
    Sketcher.Constraint("Symmetric", 21, 3, 35, 3, -1),
    Sketcher.Constraint("Perpendicular", 4, 8),
    Sketcher.Constraint("Parallel", 8, 26),
    Sketcher.Constraint("Perpendicular", 26, 30),
    Sketcher.Constraint("Horizontal", 78, 2, 81, 2),
    Sketcher.Constraint("Vertical", 64, 2, 79, 2),
    Sketcher.Constraint("Vertical", 63, 2, 80, 2),
    Sketcher.Constraint("Vertical", 62, 2, 81, 2),
    Sketcher.Constraint("Equal", 60, 18),
    Sketcher.Constraint("Diameter", 88, 6.8),
    Sketcher.Constraint("Angle", 68, Q("-2 deg")),
    Sketcher.Constraint("Radius", 1, 1.57),
    Sketcher.Constraint("Radius", 3, 0.76),
    Sketcher.Constraint("Radius", 17, 3.17),
    Sketcher.Constraint("Radius", 27, 4.75),
    Sketcher.Constraint("DistanceX", 16, 1, 16, 2, 11.2),
    Sketcher.Constraint("DistanceY", 15, 2, -1, 1, 20.0),
    Sketcher.Constraint("DistanceX", -1, 1, 17, 2, 20.0),
    Sketcher.Constraint("DistanceX", 64, 1, 64, 2, 1.18),
    Sketcher.Constraint("DistanceX", 0, 2, 0, 1, 3.085),
    Sketcher.Constraint("Radius", 5, 4.864551),
    Sketcher.Constraint("DistanceY", 22, 2, 22, 1, 3.085399),
    Sketcher.Constraint("DistanceX", -1, 1, 27, 3, 12.435),
    Sketcher.Constraint("DistanceY", 5, 1, -1, 1, 7.685),
    Sketcher.Constraint("DistanceY", -1, 1, 68, 2, 10.033001),
    Sketcher.Constraint("DistanceX", 6, 1, 6, 2, 5.554671),
    Sketcher.Constraint("DistanceX", 24, 2, 24, 1, 0.489942),
    Sketcher.Constraint("DistanceY", 2, 1, 2, 2, 0.462111),
    Sketcher.Constraint("DistanceY", 28, 1, 28, 2, 5.001569),
    Sketcher.Constraint("DistanceY", 62, 2, 62, 1, 11.257021),
    Sketcher.Constraint("DistanceY", 78, 1, 78, 2, 2.95748),
    Sketcher.Constraint("DistanceY", 82, 2, 82, 1, 11.260449),
    Sketcher.Constraint("DistanceX", 68, 2, -1, 1, 13.719899),
    Sketcher.Constraint("DistanceX", 75, 1, -1, 1, 13.816899),
    Sketcher.Constraint("DistanceX", 20, 2, 20, 1, 1.180004),
    Sketcher.Constraint("DistanceX", 84, 1, 84, 2, 11.044615),
    Sketcher.Constraint("DistanceX", -1, 1, 25, 3, 13.811732),
    Sketcher.Constraint("DistanceY", 79, 3, -1, 1, 5.690449),
])
sketch1.setExpression("Constraints[187]", "Params.sketch1_diameter")
sketch1.setExpression("Constraints[189]", "Params.sketch1_radius")
sketch1.setExpression("Constraints[190]", "Params.sketch1_radius2")
sketch1.setExpression("Constraints[191]", "Params.sketch1_radius3")
sketch1.setExpression("Constraints[192]", "Params.sketch1_radius4")
pad1 = body.newObject("PartDesign::Pad", "Pad")
pad1.Profile = sketch1
pad1.setExpression("Length", "Params.pad1_length")
pad1.Reversed = True

doc.recompute()
